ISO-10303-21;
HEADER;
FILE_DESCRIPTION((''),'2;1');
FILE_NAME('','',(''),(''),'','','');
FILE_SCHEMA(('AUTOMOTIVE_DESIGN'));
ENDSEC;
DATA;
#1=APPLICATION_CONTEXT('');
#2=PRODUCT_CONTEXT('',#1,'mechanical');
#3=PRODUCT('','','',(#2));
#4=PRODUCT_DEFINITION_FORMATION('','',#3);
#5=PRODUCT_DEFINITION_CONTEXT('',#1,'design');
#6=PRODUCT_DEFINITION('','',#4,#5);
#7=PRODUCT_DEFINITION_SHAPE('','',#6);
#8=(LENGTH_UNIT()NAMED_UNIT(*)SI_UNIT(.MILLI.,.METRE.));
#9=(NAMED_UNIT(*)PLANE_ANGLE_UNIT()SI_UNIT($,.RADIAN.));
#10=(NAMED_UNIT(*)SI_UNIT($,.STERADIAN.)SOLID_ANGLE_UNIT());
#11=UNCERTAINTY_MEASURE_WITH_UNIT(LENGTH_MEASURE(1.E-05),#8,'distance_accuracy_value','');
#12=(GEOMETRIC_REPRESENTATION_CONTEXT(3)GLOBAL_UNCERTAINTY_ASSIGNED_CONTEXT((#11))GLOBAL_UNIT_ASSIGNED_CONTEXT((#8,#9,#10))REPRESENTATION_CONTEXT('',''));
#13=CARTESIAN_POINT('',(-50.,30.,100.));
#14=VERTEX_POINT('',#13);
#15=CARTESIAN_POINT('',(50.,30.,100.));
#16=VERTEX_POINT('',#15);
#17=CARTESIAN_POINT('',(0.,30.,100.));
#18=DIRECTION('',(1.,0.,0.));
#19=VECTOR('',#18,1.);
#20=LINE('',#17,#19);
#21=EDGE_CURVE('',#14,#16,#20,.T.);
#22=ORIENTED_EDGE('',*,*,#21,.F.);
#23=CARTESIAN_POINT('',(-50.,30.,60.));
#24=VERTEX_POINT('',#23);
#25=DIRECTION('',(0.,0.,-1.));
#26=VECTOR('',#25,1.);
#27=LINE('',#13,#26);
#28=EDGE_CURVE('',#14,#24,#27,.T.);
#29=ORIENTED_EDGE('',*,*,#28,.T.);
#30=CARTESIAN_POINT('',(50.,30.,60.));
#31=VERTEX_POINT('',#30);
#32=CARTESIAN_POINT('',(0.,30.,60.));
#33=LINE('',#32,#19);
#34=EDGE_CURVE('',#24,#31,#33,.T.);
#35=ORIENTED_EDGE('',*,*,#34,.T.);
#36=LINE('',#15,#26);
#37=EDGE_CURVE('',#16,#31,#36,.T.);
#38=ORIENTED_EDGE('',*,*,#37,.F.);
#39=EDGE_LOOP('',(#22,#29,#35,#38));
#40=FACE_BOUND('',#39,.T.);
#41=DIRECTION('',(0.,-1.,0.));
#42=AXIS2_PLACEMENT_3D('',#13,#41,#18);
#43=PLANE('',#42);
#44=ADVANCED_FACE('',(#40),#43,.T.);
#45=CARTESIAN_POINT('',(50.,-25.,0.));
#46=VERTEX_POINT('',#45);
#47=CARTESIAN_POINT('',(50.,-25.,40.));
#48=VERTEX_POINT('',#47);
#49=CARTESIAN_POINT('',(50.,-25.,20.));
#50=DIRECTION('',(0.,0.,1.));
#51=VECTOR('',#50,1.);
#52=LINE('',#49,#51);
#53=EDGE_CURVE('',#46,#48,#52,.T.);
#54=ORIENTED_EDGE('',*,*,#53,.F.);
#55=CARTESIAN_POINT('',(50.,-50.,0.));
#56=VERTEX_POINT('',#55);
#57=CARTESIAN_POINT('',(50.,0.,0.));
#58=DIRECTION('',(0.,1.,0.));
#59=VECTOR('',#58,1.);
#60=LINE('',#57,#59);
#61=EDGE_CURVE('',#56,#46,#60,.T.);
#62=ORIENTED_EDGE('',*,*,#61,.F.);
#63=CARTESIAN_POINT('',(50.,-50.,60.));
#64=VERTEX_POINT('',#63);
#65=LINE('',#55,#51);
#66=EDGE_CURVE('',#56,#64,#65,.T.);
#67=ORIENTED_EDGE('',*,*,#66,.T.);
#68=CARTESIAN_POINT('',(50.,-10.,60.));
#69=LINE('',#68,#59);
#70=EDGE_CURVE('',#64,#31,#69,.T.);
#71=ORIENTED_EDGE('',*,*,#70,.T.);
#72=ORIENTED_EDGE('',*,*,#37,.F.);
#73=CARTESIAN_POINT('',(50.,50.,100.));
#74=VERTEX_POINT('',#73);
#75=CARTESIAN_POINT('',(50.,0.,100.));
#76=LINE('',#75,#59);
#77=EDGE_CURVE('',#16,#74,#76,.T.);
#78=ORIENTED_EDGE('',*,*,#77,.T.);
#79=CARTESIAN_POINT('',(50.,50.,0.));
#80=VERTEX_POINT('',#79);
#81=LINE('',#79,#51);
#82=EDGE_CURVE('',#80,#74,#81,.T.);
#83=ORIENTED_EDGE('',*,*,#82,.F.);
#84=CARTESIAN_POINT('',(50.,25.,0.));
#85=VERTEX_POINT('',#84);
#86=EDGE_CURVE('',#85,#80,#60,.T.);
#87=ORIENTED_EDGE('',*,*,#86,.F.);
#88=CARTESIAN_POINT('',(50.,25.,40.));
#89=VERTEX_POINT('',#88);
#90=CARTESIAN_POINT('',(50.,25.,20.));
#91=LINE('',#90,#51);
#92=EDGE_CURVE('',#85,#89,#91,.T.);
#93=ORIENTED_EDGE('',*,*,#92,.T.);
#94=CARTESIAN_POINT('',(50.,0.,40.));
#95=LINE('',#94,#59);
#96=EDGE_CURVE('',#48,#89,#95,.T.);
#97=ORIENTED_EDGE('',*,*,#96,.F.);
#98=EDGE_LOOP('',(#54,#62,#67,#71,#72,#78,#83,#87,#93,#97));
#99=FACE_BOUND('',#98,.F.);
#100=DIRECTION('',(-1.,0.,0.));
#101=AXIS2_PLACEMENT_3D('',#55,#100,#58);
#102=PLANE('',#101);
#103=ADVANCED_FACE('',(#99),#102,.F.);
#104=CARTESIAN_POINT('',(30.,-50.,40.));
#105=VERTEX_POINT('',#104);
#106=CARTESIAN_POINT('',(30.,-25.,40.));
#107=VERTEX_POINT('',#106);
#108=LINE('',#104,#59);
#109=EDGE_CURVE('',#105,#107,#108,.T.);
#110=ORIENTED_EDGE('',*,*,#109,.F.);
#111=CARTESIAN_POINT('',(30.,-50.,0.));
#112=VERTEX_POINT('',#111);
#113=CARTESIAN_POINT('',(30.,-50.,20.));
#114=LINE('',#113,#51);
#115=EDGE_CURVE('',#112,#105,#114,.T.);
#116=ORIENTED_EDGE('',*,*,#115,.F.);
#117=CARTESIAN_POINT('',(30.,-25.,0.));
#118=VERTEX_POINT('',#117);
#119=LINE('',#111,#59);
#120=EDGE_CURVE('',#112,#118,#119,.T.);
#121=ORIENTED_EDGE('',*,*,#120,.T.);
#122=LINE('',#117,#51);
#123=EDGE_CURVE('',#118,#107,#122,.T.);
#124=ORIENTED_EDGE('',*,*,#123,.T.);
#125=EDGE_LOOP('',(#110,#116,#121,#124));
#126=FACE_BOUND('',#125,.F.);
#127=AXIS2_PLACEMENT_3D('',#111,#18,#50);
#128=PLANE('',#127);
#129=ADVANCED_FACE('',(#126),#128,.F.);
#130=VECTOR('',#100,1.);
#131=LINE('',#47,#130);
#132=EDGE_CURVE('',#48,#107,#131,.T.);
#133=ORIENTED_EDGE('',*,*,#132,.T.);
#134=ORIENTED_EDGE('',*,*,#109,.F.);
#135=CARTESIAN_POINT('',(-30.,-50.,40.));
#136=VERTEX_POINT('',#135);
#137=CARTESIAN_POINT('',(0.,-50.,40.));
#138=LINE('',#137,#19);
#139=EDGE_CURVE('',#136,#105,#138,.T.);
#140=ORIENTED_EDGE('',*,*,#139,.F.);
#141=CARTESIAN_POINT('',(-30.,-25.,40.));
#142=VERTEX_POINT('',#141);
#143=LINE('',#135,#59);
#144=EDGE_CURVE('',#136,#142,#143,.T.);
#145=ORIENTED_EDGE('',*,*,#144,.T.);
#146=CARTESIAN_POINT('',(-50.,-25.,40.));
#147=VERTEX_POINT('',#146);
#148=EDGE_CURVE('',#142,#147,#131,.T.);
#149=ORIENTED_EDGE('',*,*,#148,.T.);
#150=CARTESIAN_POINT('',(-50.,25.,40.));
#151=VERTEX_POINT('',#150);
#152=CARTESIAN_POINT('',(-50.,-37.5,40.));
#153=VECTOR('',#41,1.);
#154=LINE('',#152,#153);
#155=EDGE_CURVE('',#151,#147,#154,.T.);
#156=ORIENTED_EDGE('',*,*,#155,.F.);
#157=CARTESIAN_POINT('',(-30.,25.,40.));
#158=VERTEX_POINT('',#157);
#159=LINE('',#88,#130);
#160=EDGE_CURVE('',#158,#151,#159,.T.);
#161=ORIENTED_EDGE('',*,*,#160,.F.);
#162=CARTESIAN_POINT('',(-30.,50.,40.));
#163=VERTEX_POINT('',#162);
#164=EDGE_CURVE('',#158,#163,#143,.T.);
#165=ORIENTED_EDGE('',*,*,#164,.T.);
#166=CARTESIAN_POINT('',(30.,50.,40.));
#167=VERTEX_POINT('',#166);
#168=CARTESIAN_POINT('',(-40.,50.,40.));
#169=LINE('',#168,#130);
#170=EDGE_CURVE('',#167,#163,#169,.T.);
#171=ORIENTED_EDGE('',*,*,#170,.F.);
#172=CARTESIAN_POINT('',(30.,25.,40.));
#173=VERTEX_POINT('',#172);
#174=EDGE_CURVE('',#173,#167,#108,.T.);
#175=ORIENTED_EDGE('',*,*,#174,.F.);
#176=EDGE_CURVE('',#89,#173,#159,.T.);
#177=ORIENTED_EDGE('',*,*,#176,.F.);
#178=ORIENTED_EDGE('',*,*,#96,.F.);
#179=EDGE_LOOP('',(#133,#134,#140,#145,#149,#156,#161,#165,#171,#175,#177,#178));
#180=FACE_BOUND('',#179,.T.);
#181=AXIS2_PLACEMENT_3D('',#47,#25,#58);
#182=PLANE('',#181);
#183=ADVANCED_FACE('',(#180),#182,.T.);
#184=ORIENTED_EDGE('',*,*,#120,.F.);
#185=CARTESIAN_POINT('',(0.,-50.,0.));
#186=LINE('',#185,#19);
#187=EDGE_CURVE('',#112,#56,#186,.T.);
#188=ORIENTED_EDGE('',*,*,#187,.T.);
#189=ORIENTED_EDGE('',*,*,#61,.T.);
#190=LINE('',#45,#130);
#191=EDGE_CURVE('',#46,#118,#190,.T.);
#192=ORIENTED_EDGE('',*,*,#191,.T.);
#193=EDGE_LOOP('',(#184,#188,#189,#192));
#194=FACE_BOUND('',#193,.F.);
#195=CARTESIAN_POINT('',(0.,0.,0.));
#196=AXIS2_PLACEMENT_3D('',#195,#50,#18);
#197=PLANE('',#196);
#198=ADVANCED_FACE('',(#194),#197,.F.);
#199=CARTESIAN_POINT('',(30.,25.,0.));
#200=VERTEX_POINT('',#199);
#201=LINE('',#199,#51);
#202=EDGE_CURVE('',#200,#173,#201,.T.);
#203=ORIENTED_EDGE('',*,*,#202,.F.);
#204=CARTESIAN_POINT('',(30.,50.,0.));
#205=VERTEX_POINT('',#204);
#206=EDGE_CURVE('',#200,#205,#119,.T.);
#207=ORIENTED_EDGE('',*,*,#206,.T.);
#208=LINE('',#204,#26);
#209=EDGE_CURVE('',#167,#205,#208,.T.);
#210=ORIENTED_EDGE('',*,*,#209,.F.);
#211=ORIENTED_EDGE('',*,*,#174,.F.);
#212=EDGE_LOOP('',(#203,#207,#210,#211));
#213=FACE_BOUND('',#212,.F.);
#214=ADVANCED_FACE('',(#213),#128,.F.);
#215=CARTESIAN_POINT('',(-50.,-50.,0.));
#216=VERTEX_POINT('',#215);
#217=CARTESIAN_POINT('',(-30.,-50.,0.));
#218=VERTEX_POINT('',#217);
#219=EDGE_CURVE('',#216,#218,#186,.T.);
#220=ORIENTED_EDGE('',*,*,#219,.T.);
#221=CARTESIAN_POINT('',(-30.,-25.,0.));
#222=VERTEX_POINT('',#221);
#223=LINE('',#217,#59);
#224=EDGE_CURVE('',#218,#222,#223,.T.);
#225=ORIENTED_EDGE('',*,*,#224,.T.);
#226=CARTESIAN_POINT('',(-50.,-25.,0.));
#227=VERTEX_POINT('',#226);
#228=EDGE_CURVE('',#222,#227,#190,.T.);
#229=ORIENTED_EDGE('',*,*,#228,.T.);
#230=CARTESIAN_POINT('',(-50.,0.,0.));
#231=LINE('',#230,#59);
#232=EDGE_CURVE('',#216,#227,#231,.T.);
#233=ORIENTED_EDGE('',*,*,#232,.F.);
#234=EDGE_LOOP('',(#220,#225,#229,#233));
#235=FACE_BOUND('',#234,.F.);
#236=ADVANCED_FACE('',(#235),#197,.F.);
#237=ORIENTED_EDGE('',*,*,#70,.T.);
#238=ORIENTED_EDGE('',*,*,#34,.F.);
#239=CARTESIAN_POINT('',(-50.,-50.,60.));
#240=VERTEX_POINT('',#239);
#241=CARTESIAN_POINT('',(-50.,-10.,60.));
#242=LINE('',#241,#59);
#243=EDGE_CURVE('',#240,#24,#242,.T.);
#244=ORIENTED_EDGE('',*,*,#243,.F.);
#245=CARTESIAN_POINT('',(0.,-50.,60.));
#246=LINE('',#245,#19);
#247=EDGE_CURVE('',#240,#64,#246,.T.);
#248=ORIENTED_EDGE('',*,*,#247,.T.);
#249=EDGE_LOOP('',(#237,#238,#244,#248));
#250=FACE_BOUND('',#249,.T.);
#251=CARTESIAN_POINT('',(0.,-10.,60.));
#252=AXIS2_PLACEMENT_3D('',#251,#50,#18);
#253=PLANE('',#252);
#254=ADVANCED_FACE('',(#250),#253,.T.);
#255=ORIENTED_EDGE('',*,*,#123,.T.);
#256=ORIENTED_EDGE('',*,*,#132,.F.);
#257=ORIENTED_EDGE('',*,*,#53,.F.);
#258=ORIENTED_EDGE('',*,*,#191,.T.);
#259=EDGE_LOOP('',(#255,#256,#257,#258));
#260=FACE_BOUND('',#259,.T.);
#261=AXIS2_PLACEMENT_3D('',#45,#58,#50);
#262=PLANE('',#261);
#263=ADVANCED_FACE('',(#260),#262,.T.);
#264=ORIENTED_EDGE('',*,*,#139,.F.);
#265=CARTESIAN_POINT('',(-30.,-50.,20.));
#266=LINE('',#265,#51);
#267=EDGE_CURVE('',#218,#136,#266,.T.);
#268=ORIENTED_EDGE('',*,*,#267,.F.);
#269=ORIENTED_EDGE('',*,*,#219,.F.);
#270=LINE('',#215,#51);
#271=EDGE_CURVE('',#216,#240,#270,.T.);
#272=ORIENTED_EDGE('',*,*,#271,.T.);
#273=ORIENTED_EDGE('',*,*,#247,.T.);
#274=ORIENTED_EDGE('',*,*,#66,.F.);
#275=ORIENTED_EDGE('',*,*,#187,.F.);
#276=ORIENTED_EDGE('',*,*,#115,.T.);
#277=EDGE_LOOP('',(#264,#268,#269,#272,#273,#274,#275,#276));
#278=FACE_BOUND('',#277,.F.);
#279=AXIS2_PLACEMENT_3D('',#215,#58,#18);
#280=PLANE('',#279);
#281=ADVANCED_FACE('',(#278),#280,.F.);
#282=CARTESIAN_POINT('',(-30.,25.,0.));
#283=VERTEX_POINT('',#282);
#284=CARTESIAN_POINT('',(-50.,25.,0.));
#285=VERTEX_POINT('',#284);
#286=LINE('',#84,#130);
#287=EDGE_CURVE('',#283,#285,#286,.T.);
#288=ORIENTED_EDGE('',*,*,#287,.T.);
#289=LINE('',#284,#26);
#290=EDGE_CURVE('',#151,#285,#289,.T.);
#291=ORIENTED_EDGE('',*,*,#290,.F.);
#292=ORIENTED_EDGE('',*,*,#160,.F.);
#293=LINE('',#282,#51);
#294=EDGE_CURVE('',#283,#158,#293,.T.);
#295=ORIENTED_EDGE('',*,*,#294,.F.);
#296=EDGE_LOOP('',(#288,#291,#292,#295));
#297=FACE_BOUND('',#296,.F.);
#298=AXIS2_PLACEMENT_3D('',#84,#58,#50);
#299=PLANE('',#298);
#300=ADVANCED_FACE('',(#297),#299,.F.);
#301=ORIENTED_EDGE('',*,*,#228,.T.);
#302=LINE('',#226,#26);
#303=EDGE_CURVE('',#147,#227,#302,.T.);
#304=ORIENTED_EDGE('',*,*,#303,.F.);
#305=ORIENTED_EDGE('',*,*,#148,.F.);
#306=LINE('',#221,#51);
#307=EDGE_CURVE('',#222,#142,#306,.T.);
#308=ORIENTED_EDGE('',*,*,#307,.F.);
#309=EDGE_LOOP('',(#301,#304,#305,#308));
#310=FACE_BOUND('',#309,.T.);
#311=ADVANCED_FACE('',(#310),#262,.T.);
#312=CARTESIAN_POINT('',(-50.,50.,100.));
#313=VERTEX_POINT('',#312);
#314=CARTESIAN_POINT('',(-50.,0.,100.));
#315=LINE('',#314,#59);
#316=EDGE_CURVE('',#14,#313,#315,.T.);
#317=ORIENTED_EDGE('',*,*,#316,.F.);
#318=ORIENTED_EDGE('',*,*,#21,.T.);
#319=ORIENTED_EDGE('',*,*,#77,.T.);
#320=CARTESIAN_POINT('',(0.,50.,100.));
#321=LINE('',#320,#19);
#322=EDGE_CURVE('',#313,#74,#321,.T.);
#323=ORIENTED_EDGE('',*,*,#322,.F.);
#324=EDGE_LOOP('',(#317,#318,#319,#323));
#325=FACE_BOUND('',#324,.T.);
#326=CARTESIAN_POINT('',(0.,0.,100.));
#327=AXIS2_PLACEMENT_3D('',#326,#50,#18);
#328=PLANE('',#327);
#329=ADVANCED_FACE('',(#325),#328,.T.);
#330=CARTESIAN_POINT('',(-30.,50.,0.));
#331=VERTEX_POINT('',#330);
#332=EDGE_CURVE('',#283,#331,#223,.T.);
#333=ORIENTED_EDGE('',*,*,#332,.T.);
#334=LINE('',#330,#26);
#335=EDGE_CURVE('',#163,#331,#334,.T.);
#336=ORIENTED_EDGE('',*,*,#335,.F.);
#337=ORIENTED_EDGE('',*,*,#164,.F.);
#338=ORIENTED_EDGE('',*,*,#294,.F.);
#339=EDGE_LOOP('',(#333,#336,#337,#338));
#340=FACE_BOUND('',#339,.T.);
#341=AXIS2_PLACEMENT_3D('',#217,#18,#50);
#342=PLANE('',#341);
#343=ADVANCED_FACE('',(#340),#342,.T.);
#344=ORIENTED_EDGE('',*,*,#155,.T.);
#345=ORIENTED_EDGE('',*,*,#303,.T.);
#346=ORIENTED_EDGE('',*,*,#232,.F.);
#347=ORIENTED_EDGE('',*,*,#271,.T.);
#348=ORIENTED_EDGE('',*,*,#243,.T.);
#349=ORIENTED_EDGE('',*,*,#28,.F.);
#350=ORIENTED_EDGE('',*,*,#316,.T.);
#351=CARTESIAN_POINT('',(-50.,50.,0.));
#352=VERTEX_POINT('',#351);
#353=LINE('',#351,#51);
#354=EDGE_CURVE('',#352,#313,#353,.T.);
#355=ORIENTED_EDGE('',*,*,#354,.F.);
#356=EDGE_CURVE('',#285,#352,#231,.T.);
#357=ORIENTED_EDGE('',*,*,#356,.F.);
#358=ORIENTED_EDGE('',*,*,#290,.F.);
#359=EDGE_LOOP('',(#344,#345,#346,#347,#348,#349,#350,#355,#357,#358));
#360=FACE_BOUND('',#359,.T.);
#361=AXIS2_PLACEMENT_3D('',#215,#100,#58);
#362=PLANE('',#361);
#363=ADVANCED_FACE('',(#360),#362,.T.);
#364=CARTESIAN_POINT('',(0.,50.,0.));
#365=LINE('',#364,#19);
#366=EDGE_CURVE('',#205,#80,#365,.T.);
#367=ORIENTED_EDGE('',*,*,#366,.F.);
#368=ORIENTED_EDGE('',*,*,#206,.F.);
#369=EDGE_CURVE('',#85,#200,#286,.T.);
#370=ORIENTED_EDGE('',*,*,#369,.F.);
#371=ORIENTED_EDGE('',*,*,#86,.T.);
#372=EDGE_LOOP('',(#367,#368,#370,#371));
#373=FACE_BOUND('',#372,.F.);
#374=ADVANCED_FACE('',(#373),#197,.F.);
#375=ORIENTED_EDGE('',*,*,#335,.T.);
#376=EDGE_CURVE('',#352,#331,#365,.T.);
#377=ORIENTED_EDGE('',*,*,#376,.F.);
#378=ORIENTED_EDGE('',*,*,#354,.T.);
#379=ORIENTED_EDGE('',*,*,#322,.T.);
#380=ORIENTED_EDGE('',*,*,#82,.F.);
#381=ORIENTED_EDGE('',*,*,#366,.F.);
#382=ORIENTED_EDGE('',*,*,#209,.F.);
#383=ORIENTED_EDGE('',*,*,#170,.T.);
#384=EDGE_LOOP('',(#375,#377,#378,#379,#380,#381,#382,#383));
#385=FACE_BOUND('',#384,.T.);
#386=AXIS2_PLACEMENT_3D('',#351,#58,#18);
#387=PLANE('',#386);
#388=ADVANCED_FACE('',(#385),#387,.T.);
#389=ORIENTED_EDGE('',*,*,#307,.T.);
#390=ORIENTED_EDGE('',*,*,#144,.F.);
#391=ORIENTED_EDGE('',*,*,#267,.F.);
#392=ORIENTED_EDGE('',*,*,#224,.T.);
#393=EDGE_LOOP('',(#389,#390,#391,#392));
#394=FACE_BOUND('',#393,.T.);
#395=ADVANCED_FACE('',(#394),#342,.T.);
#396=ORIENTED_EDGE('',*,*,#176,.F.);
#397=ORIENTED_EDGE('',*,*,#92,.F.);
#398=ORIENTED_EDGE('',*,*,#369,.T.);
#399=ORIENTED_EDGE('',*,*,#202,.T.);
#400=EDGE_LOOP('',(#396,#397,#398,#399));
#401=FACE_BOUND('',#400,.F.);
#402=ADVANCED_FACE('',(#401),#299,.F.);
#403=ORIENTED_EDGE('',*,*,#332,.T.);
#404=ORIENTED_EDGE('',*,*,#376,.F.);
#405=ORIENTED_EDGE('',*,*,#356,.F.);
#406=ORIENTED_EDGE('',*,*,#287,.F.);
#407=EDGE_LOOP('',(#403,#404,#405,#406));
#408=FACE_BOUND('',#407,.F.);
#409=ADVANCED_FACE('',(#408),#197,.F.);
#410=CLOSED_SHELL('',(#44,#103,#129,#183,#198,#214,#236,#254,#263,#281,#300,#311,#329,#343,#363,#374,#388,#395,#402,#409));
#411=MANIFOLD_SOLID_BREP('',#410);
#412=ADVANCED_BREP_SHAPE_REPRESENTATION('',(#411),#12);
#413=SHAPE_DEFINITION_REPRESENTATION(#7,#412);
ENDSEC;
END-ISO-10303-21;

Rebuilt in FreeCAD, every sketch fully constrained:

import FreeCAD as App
import Part
import Sketcher
from FreeCAD import Vector

doc = App.newDocument("Part")
body = doc.addObject("PartDesign::Body", "Body")

# Sketch on XY plane
sketch1 = body.newObject("Sketcher::SketchObject", "Sketch")
sketch1.AttachmentSupport = (doc.getObject("XY_Plane"), [""])
sketch1.MapMode = "FlatFace"
sketch1.addGeometry([
    Part.LineSegment(Vector(-50, 50, 0), Vector(-50, -50, 0)),
    Part.LineSegment(Vector(-50, -50, 0), Vector(50, -50, 0)),
    Part.LineSegment(Vector(50, -50, 0), Vector(50, 50, 0)),
    Part.LineSegment(Vector(50, 50, 0), Vector(-50, 50, 0)),
], False)
sketch1.addConstraint([
    Sketcher.Constraint("Coincident", 0, 2, 1, 1),
    Sketcher.Constraint("Coincident", 1, 2, 2, 1),
    Sketcher.Constraint("Coincident", 2, 2, 3, 1),
    Sketcher.Constraint("Coincident", 3, 2, 0, 1),
    Sketcher.Constraint("Vertical", 0),
    Sketcher.Constraint("Horizontal", 1),
    Sketcher.Constraint("Vertical", 2),
    Sketcher.Constraint("Horizontal", 3),
    Sketcher.Constraint("Symmetric", 0, 2, 2, 2, -1, 1),
    Sketcher.Constraint("Equal", 3, 0),
    Sketcher.Constraint("DistanceX", 1, 1, 1, 2, 100.0),
])
pad1 = body.newObject("PartDesign::Pad", "Pad")
pad1.Profile = sketch1
pad1.Length = 100

# Sketch on XY plane
sketch2 = body.newObject("Sketcher::SketchObject", "Sketch001")
sketch2.AttachmentSupport = (doc.getObject("XY_Plane"), [""])
sketch2.MapMode = "FlatFace"
sketch2.AttachmentOffset = App.Placement(Vector(0, 0, 100), App.Rotation())
sketch2.addGeometry([
    Part.LineSegment(Vector(-50, 30, 0), Vector(-50, -50, 0)),
    Part.LineSegment(Vector(-50, -50, 0), Vector(50, -50, 0)),
    Part.LineSegment(Vector(50, -50, 0), Vector(50, 30, 0)),
    Part.LineSegment(Vector(50, 30, 0), Vector(-50, 30, 0)),
], False)
sketch2.addConstraint([
    Sketcher.Constraint("Coincident", 0, 2, 1, 1),
    Sketcher.Constraint("Coincident", 1, 2, 2, 1),
    Sketcher.Constraint("Coincident", 2, 2, 3, 1),
    Sketcher.Constraint("Coincident", 3, 2, 0, 1),
    Sketcher.Constraint("Vertical", 0),
    Sketcher.Constraint("Horizontal", 1),
    Sketcher.Constraint("Vertical", 2),
    Sketcher.Constraint("Horizontal", 3),
    Sketcher.Constraint("DistanceX", 1, 1, 1, 2, 100.0),
    Sketcher.Constraint("DistanceY", 0, 2, 0, 1, 80.0),
    Sketcher.Constraint("DistanceX", 0, 2, -1, 1, 50.0),
    Sketcher.Constraint("DistanceY", 0, 2, -1, 1, 50.0),
])
pocket1 = body.newObject("PartDesign::Pocket", "Pocket")
pocket1.Profile = sketch2
pocket1.Length = 40

# Sketch on XZ plane
sketch3 = body.newObject("Sketcher::SketchObject", "Sketch002")
sketch3.AttachmentSupport = (doc.getObject("XZ_Plane"), [""])
sketch3.MapMode = "FlatFace"
sketch3.AttachmentOffset = App.Placement(Vector(0, 0, 50), App.Rotation())
sketch3.addGeometry([
    Part.LineSegment(Vector(-30, 40, 0), Vector(-30, 0, 0)),
    Part.LineSegment(Vector(-30, 0, 0), Vector(30, 0, 0)),
    Part.LineSegment(Vector(30, 0, 0), Vector(30, 40, 0)),
    Part.LineSegment(Vector(30, 40, 0), Vector(-30, 40, 0)),
], False)
sketch3.addConstraint([
    Sketcher.Constraint("Coincident", 0, 2, 1, 1),
    Sketcher.Constraint("Coincident", 1, 2, 2, 1),
    Sketcher.Constraint("Coincident", 2, 2, 3, 1),
    Sketcher.Constraint("Coincident", 3, 2, 0, 1),
    Sketcher.Constraint("Vertical", 0),
    Sketcher.Constraint("Horizontal", 1),
    Sketcher.Constraint("Vertical", 2),
    Sketcher.Constraint("Horizontal", 3),
    Sketcher.Constraint("Symmetric", 0, 2, 1, 2, -1, 1),
    Sketcher.Constraint("DistanceX", 1, 1, 1, 2, 60.0),
    Sketcher.Constraint("DistanceY", 0, 2, 0, 1, 40.0),
])
pocket2 = body.newObject("PartDesign::Pocket", "Pocket001")
pocket2.Profile = sketch3
pocket2.Type = "ThroughAll"

# Sketch on YZ plane
sketch4 = body.newObject("Sketcher::SketchObject", "Sketch003")
sketch4.AttachmentSupport = (doc.getObject("YZ_Plane"), [""])
sketch4.MapMode = "FlatFace"
sketch4.AttachmentOffset = App.Placement(Vector(0, 0, 50), App.Rotation())
sketch4.addGeometry([
    Part.LineSegment(Vector(-25, 40, 0), Vector(-25, 0, 0)),
    Part.LineSegment(Vector(-25, 0, 0), Vector(25, 0, 0)),
    Part.LineSegment(Vector(25, 0, 0), Vector(25, 40, 0)),
    Part.LineSegment(Vector(25, 40, 0), Vector(-25, 40, 0)),
], False)
sketch4.addConstraint([
    Sketcher.Constraint("Coincident", 0, 2, 1, 1),
    Sketcher.Constraint("Coincident", 1, 2, 2, 1),
    Sketcher.Constraint("Coincident", 2, 2, 3, 1),
    Sketcher.Constraint("Coincident", 3, 2, 0, 1),
    Sketcher.Constraint("Vertical", 0),
    Sketcher.Constraint("Horizontal", 1),
    Sketcher.Constraint("Vertical", 2),
    Sketcher.Constraint("Horizontal", 3),
    Sketcher.Constraint("Symmetric", 0, 2, 1, 2, -1, 1),
    Sketcher.Constraint("DistanceX", 1, 1, 1, 2, 50.0),
    Sketcher.Constraint("DistanceY", 0, 2, 0, 1, 40.0),
])
pocket3 = body.newObject("PartDesign::Pocket", "Pocket002")
pocket3.Profile = sketch4
pocket3.Type = "ThroughAll"

doc.recompute()
